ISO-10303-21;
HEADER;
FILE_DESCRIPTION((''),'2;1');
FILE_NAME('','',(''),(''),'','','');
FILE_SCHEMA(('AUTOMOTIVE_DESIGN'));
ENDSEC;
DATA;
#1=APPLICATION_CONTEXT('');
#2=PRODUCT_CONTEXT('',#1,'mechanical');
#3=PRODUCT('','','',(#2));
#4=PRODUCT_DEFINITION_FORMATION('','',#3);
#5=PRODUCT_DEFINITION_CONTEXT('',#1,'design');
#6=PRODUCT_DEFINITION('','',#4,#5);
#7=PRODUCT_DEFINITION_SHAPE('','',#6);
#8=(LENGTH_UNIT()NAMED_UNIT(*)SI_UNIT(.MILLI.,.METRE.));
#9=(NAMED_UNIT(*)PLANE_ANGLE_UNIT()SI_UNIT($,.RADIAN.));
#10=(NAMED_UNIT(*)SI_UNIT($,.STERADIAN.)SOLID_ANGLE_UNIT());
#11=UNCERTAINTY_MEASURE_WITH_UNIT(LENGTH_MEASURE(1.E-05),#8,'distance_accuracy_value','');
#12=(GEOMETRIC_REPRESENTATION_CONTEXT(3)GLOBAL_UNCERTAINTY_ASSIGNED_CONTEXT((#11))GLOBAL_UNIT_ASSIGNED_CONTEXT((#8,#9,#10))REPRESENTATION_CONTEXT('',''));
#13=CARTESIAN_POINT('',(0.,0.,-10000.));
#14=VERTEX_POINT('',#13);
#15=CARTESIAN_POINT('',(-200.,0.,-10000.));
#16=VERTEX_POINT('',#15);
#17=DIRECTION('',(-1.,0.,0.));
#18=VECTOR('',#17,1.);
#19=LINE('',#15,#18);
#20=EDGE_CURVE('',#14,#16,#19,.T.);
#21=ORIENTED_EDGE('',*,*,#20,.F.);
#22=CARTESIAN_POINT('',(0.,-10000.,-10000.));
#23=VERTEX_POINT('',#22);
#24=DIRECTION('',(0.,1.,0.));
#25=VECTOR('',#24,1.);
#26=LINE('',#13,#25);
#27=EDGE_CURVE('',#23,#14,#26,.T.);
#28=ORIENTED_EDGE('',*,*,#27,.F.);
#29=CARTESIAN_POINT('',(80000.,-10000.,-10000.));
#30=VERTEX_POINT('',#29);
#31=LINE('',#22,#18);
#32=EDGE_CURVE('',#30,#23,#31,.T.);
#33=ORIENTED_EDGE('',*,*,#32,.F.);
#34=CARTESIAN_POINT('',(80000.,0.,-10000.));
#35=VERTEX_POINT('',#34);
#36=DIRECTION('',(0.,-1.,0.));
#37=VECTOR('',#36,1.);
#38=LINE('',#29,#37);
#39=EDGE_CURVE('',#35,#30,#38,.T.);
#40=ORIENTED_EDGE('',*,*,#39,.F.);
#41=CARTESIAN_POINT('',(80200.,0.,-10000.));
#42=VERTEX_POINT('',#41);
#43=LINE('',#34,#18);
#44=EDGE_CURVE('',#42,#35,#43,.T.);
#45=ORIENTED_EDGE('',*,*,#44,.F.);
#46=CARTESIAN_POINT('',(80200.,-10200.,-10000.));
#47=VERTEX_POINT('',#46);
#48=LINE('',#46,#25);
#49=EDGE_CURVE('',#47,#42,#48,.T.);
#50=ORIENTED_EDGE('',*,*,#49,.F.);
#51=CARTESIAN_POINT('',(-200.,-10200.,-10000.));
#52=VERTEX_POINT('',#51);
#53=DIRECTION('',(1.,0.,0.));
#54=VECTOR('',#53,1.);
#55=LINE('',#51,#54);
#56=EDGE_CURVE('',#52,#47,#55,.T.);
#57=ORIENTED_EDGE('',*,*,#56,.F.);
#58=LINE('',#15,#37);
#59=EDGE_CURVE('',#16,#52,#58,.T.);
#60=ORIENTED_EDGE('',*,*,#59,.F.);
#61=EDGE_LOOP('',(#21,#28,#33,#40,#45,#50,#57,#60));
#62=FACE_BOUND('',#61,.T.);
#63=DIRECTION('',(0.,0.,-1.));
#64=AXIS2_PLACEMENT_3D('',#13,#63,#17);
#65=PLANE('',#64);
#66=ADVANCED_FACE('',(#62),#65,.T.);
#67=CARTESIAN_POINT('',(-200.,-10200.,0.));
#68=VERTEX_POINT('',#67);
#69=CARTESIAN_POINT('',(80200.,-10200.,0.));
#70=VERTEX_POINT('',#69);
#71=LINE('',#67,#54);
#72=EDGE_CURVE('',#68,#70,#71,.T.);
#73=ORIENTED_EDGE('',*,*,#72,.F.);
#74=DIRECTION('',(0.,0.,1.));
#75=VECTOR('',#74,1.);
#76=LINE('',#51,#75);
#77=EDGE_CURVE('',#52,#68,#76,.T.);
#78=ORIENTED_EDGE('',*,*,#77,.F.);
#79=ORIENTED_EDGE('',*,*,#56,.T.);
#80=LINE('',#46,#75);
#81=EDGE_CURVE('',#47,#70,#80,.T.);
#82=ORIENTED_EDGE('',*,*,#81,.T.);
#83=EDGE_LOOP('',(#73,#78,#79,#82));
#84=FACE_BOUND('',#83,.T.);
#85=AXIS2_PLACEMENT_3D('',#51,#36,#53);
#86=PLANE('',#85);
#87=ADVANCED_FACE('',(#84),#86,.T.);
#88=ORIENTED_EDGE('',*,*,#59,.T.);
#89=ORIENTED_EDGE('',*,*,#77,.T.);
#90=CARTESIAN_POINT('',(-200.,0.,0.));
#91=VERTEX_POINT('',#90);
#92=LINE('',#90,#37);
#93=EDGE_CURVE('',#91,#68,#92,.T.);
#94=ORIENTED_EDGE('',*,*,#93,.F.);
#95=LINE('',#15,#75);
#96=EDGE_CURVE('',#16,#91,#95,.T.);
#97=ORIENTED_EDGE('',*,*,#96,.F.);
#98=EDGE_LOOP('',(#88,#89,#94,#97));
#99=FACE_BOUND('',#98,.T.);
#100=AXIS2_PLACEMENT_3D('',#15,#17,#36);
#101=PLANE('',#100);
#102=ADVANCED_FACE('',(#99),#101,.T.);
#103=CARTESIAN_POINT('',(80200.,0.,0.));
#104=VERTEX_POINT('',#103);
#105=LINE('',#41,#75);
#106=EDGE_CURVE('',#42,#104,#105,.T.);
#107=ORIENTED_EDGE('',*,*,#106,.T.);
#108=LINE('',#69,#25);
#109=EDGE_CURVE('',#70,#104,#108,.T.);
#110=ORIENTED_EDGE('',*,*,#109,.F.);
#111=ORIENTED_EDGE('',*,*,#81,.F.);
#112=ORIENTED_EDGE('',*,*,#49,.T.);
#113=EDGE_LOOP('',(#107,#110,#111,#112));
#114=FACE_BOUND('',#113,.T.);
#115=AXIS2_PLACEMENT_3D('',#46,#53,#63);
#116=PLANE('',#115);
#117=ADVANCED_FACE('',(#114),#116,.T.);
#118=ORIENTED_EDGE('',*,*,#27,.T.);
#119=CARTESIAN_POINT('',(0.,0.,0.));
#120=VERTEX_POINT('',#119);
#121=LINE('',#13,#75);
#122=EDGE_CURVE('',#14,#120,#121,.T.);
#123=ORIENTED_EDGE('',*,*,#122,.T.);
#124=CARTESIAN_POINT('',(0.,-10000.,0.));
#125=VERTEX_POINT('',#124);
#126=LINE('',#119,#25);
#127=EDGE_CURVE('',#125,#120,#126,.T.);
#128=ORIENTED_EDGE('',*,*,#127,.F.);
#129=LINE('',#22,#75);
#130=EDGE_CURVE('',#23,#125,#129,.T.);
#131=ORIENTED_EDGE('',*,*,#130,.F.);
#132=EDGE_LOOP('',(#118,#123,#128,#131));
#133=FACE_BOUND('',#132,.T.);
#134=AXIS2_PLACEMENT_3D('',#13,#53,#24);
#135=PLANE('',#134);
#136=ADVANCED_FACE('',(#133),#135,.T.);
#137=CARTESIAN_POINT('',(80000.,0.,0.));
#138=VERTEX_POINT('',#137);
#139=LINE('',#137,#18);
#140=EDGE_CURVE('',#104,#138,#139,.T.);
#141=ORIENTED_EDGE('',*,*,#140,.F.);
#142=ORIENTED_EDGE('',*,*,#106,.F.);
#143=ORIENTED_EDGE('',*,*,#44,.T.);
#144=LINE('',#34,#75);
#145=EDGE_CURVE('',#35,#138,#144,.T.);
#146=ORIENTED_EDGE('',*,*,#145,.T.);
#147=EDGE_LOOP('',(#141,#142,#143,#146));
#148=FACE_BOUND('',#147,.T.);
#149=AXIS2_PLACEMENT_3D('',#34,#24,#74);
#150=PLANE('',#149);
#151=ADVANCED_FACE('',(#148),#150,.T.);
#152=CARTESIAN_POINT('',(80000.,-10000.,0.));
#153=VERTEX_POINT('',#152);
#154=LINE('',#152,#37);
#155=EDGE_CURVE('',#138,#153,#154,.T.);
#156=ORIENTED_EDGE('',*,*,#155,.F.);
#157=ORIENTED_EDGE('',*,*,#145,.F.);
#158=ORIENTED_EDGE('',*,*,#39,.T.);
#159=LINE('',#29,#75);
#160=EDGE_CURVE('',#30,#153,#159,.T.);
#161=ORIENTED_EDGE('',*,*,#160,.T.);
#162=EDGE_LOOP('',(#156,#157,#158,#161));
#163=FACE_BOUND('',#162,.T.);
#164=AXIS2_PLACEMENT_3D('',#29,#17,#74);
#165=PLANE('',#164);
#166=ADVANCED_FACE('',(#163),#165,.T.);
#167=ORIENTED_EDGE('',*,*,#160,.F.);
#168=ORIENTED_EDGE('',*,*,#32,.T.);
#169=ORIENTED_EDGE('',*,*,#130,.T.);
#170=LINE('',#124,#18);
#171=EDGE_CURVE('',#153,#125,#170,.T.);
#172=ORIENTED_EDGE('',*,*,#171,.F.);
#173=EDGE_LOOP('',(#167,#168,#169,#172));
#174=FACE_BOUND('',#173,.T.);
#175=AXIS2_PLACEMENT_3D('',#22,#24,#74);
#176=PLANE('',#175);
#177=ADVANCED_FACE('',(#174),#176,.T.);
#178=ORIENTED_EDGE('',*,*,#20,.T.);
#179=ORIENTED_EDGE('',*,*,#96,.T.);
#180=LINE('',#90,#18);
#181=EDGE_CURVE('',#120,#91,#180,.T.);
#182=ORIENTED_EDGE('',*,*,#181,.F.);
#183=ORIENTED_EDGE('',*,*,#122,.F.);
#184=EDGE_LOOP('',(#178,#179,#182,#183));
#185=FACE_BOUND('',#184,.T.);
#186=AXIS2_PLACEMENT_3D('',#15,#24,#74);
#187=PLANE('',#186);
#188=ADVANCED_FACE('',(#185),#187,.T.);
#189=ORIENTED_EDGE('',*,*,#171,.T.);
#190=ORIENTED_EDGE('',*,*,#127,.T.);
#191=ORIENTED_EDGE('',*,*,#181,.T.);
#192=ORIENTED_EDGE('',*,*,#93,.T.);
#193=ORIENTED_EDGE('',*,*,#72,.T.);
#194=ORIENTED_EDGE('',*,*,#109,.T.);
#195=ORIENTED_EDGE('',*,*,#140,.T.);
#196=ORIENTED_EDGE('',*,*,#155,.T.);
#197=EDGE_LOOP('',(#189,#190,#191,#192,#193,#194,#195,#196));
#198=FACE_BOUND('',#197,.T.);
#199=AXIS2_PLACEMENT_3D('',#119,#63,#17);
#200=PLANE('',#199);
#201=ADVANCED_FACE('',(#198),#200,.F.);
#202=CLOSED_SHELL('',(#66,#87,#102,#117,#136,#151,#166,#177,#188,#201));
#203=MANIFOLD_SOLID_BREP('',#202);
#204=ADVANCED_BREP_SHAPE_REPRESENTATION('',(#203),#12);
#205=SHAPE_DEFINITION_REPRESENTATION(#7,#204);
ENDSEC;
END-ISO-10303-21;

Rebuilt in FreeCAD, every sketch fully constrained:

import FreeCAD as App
import Part
import Sketcher
Q = App.Units.Quantity

doc = App.newDocument("Part")
body = doc.addObject("PartDesign::Body", "Body")

# Sketch on XY plane
sketch1 = body.newObject("Sketcher::SketchObject", "Sketch")
sketch1.AttachmentSupport = (doc.getObject("XY_Plane"), [""])
sketch1.MapMode = "FlatFace"
sketch1.addGeometry([
    Part.LineSegment(App.Vector(0, -10000, 0), App.Vector(0, 0, 0)),  # 0
    Part.LineSegment(App.Vector(0, 0, 0), App.Vector(-200, 0, 0)),  # 1
    Part.LineSegment(App.Vector(-200, 0, 0), App.Vector(-200, -10200, 0)),  # 2
    Part.LineSegment(App.Vector(-200, -10200, 0), App.Vector(80200, -10200, 0)),  # 3
    Part.LineSegment(App.Vector(80200, -10200, 0), App.Vector(80200, 0, 0)),  # 4
    Part.LineSegment(App.Vector(80200, 0, 0), App.Vector(80000, 0, 0)),  # 5
    Part.LineSegment(App.Vector(80000, 0, 0), App.Vector(80000, -10000, 0)),  # 6
    Part.LineSegment(App.Vector(80000, -10000, 0), App.Vector(0, -10000, 0)),  # 7
], False)
sketch1.addConstraint([
    Sketcher.Constraint("Coincident", 0, 2, 1, 1),
    Sketcher.Constraint("Coincident", 1, 2, 2, 1),
    Sketcher.Constraint("Coincident", 2, 2, 3, 1),
    Sketcher.Constraint("Coincident", 3, 2, 4, 1),
    Sketcher.Constraint("Coincident", 4, 2, 5, 1),
    Sketcher.Constraint("Coincident", 5, 2, 6, 1),
    Sketcher.Constraint("Coincident", 6, 2, 7, 1),
    Sketcher.Constraint("Coincident", 7, 2, 0, 1),
    Sketcher.Constraint("Vertical", 0),
    Sketcher.Constraint("Horizontal", 1),
    Sketcher.Constraint("Vertical", 2),
    Sketcher.Constraint("Horizontal", 3),
    Sketcher.Constraint("Vertical", 4),
    Sketcher.Constraint("Horizontal", 5),
    Sketcher.Constraint("Vertical", 6),
    Sketcher.Constraint("Horizontal", 7),
    Sketcher.Constraint("Coincident", 0, 2, -1, 1),
    Sketcher.Constraint("PointOnObject", 4, 2, -1),
    Sketcher.Constraint("Equal", 1, 5),
    Sketcher.Constraint("DistanceX", 1, 2, 1, 1, Q("200 mm")),
    Sketcher.Constraint("DistanceX", 3, 1, 3, 2, Q("80400 mm")),
    Sketcher.Constraint("DistanceY", 0, 1, 0, 2, Q("10000 mm")),
    Sketcher.Constraint("DistanceY", 2, 2, 2, 1, Q("10200 mm")),
])
pad1 = body.newObject("PartDesign::Pad", "Pad")
pad1.Profile = sketch1
pad1.Length = 10000
pad1.Reversed = True

doc.recompute()
